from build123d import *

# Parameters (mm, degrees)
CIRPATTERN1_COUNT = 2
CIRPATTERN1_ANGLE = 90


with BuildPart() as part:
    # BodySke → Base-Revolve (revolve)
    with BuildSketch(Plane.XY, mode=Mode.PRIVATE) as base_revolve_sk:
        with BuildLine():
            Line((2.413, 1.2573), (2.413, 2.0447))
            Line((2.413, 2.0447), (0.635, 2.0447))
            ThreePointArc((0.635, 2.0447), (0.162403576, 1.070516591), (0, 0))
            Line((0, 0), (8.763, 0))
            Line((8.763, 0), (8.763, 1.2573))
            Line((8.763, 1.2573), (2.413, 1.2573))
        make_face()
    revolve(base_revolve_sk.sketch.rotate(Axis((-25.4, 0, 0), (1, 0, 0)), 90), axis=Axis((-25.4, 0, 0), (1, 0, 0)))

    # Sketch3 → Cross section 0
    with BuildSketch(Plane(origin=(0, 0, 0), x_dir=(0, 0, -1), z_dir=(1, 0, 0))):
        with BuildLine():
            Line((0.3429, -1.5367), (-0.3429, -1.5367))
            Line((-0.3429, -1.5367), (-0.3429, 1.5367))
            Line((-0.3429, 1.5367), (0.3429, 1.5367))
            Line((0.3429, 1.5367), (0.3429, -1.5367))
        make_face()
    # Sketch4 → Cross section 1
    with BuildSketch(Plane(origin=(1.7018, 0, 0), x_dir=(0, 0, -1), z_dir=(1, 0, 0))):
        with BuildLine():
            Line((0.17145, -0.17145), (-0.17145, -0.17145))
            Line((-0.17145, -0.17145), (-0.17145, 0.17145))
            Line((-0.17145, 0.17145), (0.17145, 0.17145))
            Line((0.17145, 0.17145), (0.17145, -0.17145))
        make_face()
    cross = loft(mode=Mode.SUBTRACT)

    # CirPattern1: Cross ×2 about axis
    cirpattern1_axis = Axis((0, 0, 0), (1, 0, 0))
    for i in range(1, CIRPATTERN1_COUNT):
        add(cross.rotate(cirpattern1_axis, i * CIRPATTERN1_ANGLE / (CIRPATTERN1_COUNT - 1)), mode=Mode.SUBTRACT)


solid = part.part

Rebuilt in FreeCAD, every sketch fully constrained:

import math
import FreeCAD as App
import Part
import Sketcher

V = App.Vector
Q = App.Units.Quantity

doc = App.newDocument("Part")
body = doc.addObject("PartDesign::Body", "Body")

# Sketch on XY plane
sketch1 = doc.addObject("Sketcher::SketchObject", "Sketch")
body.addObject(sketch1)
sketch1.AttachmentSupport = (doc.XY_Plane, [""])
sketch1.MapMode = "FlatFace"
sketch1.addGeometry([
    Part.LineSegment(V(2.413, 1.2573, 0), V(2.413, 2.0447, 0)),  # 0
    Part.LineSegment(V(2.413, 2.0447, 0), V(0.635, 2.0447, 0)),  # 1
    Part.ArcOfCircle(Part.Circle(V(3.609467, 0, 0), V(0, 0, 1), 3.609467), math.radians(145.494696), math.radians(180)),  # 2
    Part.LineSegment(V(0, 0, 0), V(8.763, 0, 0)),  # 3
    Part.LineSegment(V(8.763, 0, 0), V(8.763, 1.2573, 0)),  # 4
    Part.LineSegment(V(8.763, 1.2573, 0), V(2.413, 1.2573, 0)),  # 5
], False)
sketch1.addConstraint([
    Sketcher.Constraint("Coincident", 0, 2, 1, 1),
    Sketcher.Constraint("Coincident", 1, 2, 2, 1),
    Sketcher.Constraint("Coincident", 2, 2, 3, 1),
    Sketcher.Constraint("Coincident", 3, 2, 4, 1),
    Sketcher.Constraint("Coincident", 4, 2, 5, 1),
    Sketcher.Constraint("Coincident", 5, 2, 0, 1),
    Sketcher.Constraint("Vertical", 0),
    Sketcher.Constraint("Horizontal", 1),
    Sketcher.Constraint("Horizontal", 3),
    Sketcher.Constraint("Vertical", 4),
    Sketcher.Constraint("Horizontal", 5),
    Sketcher.Constraint("Coincident", 2, 2, -1, 1),
    Sketcher.Constraint("PointOnObject", 2, 3, -1),
    Sketcher.Constraint("DistanceX", 1, 2, 1, 1, Q("0.07 in")),
    Sketcher.Constraint("DistanceX", 5, 2, 5, 1, Q("0.25 in")),
    Sketcher.Constraint("DistanceX", 3, 1, 3, 2, Q("0.345 in")),
    Sketcher.Constraint("DistanceY", 0, 1, 0, 2, Q("0.031 in")),
    Sketcher.Constraint("DistanceY", 4, 1, 4, 2, Q("0.0495 in")),
])
revolution = doc.addObject("PartDesign::Revolution", "Revolution")
body.addObject(revolution)
revolution.Profile = sketch1
revolution.ReferenceAxis = (sketch1, ["H_Axis"])
revolution.Angle = 360

# Sketch on YZ plane
sketch2 = doc.addObject("Sketcher::SketchObject", "Sketch001")
body.addObject(sketch2)
sketch2.AttachmentSupport = (doc.YZ_Plane, [""])
sketch2.MapMode = "FlatFace"
sketch2.addGeometry([
    Part.LineSegment(V(-1.5367, 0.3429, 0), V(-1.5367, -0.3429, 0)),
    Part.LineSegment(V(-1.5367, -0.3429, 0), V(1.5367, -0.3429, 0)),
    Part.LineSegment(V(1.5367, -0.3429, 0), V(1.5367, 0.3429, 0)),
    Part.LineSegment(V(1.5367, 0.3429, 0), V(-1.5367, 0.3429, 0)),
], False)
sketch2.addConstraint([
    Sketcher.Constraint("Coincident", 0, 2, 1, 1),
    Sketcher.Constraint("Coincident", 1, 2, 2, 1),
    Sketcher.Constraint("Coincident", 2, 2, 3, 1),
    Sketcher.Constraint("Coincident", 3, 2, 0, 1),
    Sketcher.Constraint("Vertical", 0),
    Sketcher.Constraint("Horizontal", 1),
    Sketcher.Constraint("Vertical", 2),
    Sketcher.Constraint("Horizontal", 3),
    Sketcher.Constraint("Symmetric", 0, 2, 2, 2, -1, 1),
    Sketcher.Constraint("DistanceX", 1, 1, 1, 2, Q("0.121 in")),
    Sketcher.Constraint("DistanceY", 0, 2, 0, 1, Q("0.027 in")),
])

# Sketch on YZ plane
sketch3 = doc.addObject("Sketcher::SketchObject", "Sketch002")
body.addObject(sketch3)
sketch3.AttachmentSupport = (doc.YZ_Plane, [""])
sketch3.MapMode = "FlatFace"
sketch3.AttachmentOffset = App.Placement(V(0, 0, 0.067 * 25.4), App.Rotation())
sketch3.addGeometry([
    Part.LineSegment(V(-0.17145, 0.17145, 0), V(-0.17145, -0.17145, 0)),
    Part.LineSegment(V(-0.17145, -0.17145, 0), V(0.17145, -0.17145, 0)),
    Part.LineSegment(V(0.17145, -0.17145, 0), V(0.17145, 0.17145, 0)),
    Part.LineSegment(V(0.17145, 0.17145, 0), V(-0.17145, 0.17145, 0)),
], False)
sketch3.addConstraint([
    Sketcher.Constraint("Coincident", 0, 2, 1, 1),
    Sketcher.Constraint("Coincident", 1, 2, 2, 1),
    Sketcher.Constraint("Coincident", 2, 2, 3, 1),
    Sketcher.Constraint("Coincident", 3, 2, 0, 1),
    Sketcher.Constraint("Vertical", 0),
    Sketcher.Constraint("Horizontal", 1),
    Sketcher.Constraint("Vertical", 2),
    Sketcher.Constraint("Horizontal", 3),
    Sketcher.Constraint("Symmetric", 0, 2, 2, 2, -1, 1),
    Sketcher.Constraint("Equal", 3, 0),
    Sketcher.Constraint("DistanceX", 1, 1, 1, 2, Q("0.0135 in")),
])

subtractiveloft = doc.addObject("PartDesign::SubtractiveLoft", "SubtractiveLoft")
body.addObject(subtractiveloft)
subtractiveloft.Profile = sketch2
subtractiveloft.Sections = [sketch3]
doc.recompute()

polarpattern = doc.addObject("PartDesign::PolarPattern", "PolarPattern")
body.addObject(polarpattern)
polarpattern.Originals = [subtractiveloft]
polarpattern.Axis = (doc.X_Axis, [""])
polarpattern.Angle = 90
polarpattern.Occurrences = 2
body.Tip = polarpattern

doc.recompute()
